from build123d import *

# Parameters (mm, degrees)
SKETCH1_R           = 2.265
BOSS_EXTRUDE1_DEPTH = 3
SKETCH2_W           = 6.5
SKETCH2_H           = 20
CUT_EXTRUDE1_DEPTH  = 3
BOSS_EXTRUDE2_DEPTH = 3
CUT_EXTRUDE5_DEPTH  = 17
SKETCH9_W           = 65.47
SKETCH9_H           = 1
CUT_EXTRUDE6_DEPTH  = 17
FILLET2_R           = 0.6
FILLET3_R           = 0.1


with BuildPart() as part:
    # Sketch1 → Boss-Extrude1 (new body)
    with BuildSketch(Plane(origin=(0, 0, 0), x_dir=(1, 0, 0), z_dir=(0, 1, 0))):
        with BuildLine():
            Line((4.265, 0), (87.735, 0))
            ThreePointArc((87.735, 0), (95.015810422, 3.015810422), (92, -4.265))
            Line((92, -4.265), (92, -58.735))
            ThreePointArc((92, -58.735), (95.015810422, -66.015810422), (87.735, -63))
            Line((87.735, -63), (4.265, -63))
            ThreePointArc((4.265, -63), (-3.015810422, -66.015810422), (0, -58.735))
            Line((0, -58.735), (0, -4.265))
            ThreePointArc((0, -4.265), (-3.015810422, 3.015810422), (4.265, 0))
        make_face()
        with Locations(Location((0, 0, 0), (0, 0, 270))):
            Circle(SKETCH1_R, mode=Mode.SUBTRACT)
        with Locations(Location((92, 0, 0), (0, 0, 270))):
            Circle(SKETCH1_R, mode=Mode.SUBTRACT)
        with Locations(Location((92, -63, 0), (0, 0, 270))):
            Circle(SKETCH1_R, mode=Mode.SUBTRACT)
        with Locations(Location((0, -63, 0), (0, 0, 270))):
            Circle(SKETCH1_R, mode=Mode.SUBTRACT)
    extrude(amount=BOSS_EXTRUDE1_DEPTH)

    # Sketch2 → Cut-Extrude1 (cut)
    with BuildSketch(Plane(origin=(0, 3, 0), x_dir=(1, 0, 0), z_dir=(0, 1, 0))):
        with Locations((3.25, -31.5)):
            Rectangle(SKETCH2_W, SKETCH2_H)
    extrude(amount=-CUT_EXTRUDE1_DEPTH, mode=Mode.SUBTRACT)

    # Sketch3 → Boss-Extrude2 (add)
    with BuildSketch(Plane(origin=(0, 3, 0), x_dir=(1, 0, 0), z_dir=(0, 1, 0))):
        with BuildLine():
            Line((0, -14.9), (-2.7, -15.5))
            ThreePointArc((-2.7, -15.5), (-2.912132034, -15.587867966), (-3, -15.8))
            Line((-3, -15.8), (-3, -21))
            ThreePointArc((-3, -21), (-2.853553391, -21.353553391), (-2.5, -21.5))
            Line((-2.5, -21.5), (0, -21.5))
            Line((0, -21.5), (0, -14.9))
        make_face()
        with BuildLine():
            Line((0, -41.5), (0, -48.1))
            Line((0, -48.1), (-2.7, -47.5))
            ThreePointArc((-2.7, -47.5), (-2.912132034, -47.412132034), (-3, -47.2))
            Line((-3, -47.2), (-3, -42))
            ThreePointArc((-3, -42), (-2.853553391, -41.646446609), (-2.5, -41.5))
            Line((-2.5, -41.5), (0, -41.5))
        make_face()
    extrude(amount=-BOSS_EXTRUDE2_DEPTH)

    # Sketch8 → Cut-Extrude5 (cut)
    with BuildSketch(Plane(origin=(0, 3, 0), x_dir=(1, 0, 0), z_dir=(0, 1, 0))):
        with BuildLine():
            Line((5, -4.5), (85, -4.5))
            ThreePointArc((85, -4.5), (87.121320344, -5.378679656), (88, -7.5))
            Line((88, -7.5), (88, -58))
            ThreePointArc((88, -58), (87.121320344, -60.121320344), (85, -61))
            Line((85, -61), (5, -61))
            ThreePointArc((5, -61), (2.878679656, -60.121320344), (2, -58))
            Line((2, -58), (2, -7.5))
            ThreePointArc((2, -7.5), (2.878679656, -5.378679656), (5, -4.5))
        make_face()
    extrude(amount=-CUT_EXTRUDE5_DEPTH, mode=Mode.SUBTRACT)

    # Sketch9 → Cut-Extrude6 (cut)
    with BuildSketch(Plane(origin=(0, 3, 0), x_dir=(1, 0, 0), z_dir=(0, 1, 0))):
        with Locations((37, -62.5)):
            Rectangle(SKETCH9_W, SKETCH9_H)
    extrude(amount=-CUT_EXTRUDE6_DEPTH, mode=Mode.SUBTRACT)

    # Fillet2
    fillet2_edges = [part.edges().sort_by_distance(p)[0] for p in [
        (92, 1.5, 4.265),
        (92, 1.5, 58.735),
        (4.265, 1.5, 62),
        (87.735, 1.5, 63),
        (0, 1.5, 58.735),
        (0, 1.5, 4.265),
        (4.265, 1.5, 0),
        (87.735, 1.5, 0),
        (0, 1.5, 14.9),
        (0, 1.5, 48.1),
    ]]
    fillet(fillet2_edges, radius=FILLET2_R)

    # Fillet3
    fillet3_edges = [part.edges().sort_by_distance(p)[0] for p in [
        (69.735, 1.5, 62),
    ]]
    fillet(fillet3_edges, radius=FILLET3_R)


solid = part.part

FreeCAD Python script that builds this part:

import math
import FreeCAD as App
import Part
import Sketcher

V = App.Vector
Q = App.Units.Quantity


def edges_at(feature, points):
    """Names of the edges that pass closest to the given points."""
    edges = feature.Shape.Edges
    near = lambda p: min(range(len(edges)), key=lambda i: edges[i].distToShape(Part.Vertex(*p))[0])
    return sorted({f"Edge{near(p) + 1}" for p in points})

doc = App.newDocument("Part")
params = doc.addObject("Spreadsheet::Sheet", "Params")
for row, (alias, value) in enumerate([
    ("sketch1_diameter", "4.53 mm"),
    ("pad1_length", "3 mm"),
    ("sketch2_height", "20 mm"),
    ("sketch2_width", "6.5 mm"),
    ("pocket1_length", "3 mm"),
    ("sketch3_radius", "0.3 mm"),
    ("sketch3_radius2", "0.5 mm"),
    ("sketch3_width", "2.5 mm"),
    ("sketch3_height", "5.2 mm"),
    ("sketch3_height2", "6.6 mm"),
    ("pad2_length", "3 mm"),
    ("sketch4_radius", "3 mm"),
    ("sketch4_width", "80 mm"),
    ("sketch4_height", "50.5 mm"),
    ("pocket2_length", "17 mm"),
    ("sketch5_height", "1 mm"),
    ("sketch5_width", "65.47 mm"),
    ("pocket3_length", "17 mm"),
    ("fillet_radius", "0.6 mm"),
    ("fillet2_radius", "0.1 mm"),
], start=1):
    params.set(f"A{row}", alias)
    params.set(f"B{row}", "=" + value)
    params.setAlias(f"B{row}", alias)

body = doc.addObject("PartDesign::Body", "Body")

# Sketch on XZ plane
sketch1 = doc.addObject("Sketcher::SketchObject", "Sketch")
body.addObject(sketch1)
sketch1.AttachmentSupport = (doc.XZ_Plane, [""])
sketch1.MapMode = "FlatFace"
sketch1.addGeometry([
    Part.LineSegment(V(87.735, 0, 0), V(4.265, 0, 0)),  # 0
    Part.ArcOfCircle(Part.Circle(V(0, 0, 0), V(0, 0, 1), 4.265), math.radians(90), math.radians(360)),  # 1
    Part.LineSegment(V(0, 4.265, 0), V(0, 58.735, 0)),  # 2
    Part.ArcOfCircle(Part.Circle(V(0, 63, 0), V(0, 0, 1), 4.265), math.radians(0), math.radians(270)),  # 3
    Part.LineSegment(V(4.265, 63, 0), V(87.735, 63, 0)),  # 4
    Part.ArcOfCircle(Part.Circle(V(92, 63, 0), V(0, 0, 1), 4.265), math.radians(-90), math.radians(180)),  # 5
    Part.LineSegment(V(92, 58.735, 0), V(92, 4.265, 0)),  # 6
    Part.ArcOfCircle(Part.Circle(V(92, 0, 0), V(0, 0, 1), 4.265), math.radians(180), math.radians(450)),  # 7
    Part.Circle(V(92, 63, 0), V(0, 0, 1), 2.265),  # 8
    Part.Circle(V(0, 63, 0), V(0, 0, 1), 2.265),  # 9
    Part.Circle(V(92, 0, 0), V(0, 0, 1), 2.265),  # 10
    Part.Circle(V(0, 0, 0), V(0, 0, 1), 2.265),  # 11
], False)
sketch1.addConstraint([
    Sketcher.Constraint("Coincident", 0, 2, 1, 2),
    Sketcher.Constraint("Coincident", 1, 1, 2, 1),
    Sketcher.Constraint("Coincident", 2, 2, 3, 2),
    Sketcher.Constraint("Coincident", 3, 1, 4, 1),
    Sketcher.Constraint("Coincident", 4, 2, 5, 2),
    Sketcher.Constraint("Coincident", 5, 1, 6, 1),
    Sketcher.Constraint("Coincident", 6, 2, 7, 2),
    Sketcher.Constraint("Coincident", 7, 1, 0, 1),
    Sketcher.Constraint("Horizontal", 0),
    Sketcher.Constraint("Vertical", 2),
    Sketcher.Constraint("Horizontal", 4),
    Sketcher.Constraint("Vertical", 6),
    Sketcher.Constraint("Coincident", 1, 3, -1, 1),
    Sketcher.Constraint("Coincident", 11, 3, -1, 1),
    Sketcher.Constraint("Coincident", 8, 3, 5, 3),
    Sketcher.Constraint("Coincident", 9, 3, 3, 3),
    Sketcher.Constraint("Coincident", 10, 3, 7, 3),
    Sketcher.Constraint("Equal", 1, 3),
    Sketcher.Constraint("Equal", 3, 5),
    Sketcher.Constraint("Equal", 5, 7),
    Sketcher.Constraint("Equal", 8, 9),
    Sketcher.Constraint("Equal", 9, 10),
    Sketcher.Constraint("Equal", 10, 11),
    Sketcher.Constraint("PointOnObject", 3, 3, -2),
    Sketcher.Constraint("PointOnObject", 7, 3, -1),
    Sketcher.Constraint("PointOnObject", 0, 2, -1),
    Sketcher.Constraint("PointOnObject", 1, 1, -2),
    Sketcher.Constraint("Horizontal", 3, 3, 5, 3),
    Sketcher.Constraint("Horizontal", 9, 3, 3, 1),
    Sketcher.Constraint("Vertical", 5, 3, 7, 3),
    Sketcher.Constraint("Vertical", 10, 3, 5, 1),
    Sketcher.Constraint("Diameter", 8, Q("4.53 mm")),
    Sketcher.Constraint("DistanceY", -1, 1, 3, 3, Q("63 mm")),
    Sketcher.Constraint("DistanceX", -1, 1, 5, 3, Q("92 mm")),
    Sketcher.Constraint("Radius", 1, Q("4.265 mm")),
])
sketch1.setExpression("Constraints[31]", "Params.sketch1_diameter")
pad1 = doc.addObject("PartDesign::Pad", "Pad")
body.addObject(pad1)
pad1.Profile = sketch1
pad1.setExpression("Length", "Params.pad1_length")
pad1.Reversed = True

# Sketch on XZ plane
sketch2 = doc.addObject("Sketcher::SketchObject", "Sketch001")
body.addObject(sketch2)
sketch2.AttachmentSupport = (doc.XZ_Plane, [""])
sketch2.MapMode = "FlatFace"
sketch2.AttachmentOffset = App.Placement(V(0, 0, -3), App.Rotation())
sketch2.addGeometry([
    Part.LineSegment(V(0, 21.5, 0), V(0, 41.5, 0)),
    Part.LineSegment(V(0, 41.5, 0), V(6.5, 41.5, 0)),
    Part.LineSegment(V(6.5, 41.5, 0), V(6.5, 21.5, 0)),
    Part.LineSegment(V(6.5, 21.5, 0), V(0, 21.5, 0)),
], False)
sketch2.addConstraint([
    Sketcher.Constraint("Coincident", 0, 2, 1, 1),
    Sketcher.Constraint("Coincident", 1, 2, 2, 1),
    Sketcher.Constraint("Coincident", 2, 2, 3, 1),
    Sketcher.Constraint("Coincident", 3, 2, 0, 1),
    Sketcher.Constraint("Vertical", 0),
    Sketcher.Constraint("Horizontal", 1),
    Sketcher.Constraint("Vertical", 2),
    Sketcher.Constraint("Horizontal", 3),
    Sketcher.Constraint("PointOnObject", 0, 2, -2),
    Sketcher.Constraint("DistanceY", 0, 1, 0, 2, Q("20 mm")),
    Sketcher.Constraint("DistanceX", 1, 1, 1, 2, Q("6.5 mm")),
    Sketcher.Constraint("DistanceY", -1, 1, 0, 2, Q("41.5 mm")),
])
sketch2.setExpression("Constraints[9]", "Params.sketch2_height")
sketch2.setExpression("Constraints[10]", "Params.sketch2_width")
pocket1 = doc.addObject("PartDesign::Pocket", "Pocket")
body.addObject(pocket1)
pocket1.Profile = sketch2
pocket1.setExpression("Length", "Params.pocket1_length")
pocket1.Reversed = True

# Sketch on XZ plane
sketch3 = doc.addObject("Sketcher::SketchObject", "Sketch002")
body.addObject(sketch3)
sketch3.AttachmentSupport = (doc.XZ_Plane, [""])
sketch3.MapMode = "FlatFace"
sketch3.AttachmentOffset = App.Placement(V(0, 0, -3), App.Rotation())
sketch3.addGeometry([
    Part.LineSegment(V(0, 14.9, 0), V(-2.7, 15.5, 0)),  # 0
    Part.ArcOfCircle(Part.Circle(V(-2.7, 15.8, 0), V(0, 0, 1), 0.3), math.radians(-180), math.radians(-90)),  # 1
    Part.LineSegment(V(-3, 15.8, 0), V(-3, 21, 0)),  # 2
    Part.ArcOfCircle(Part.Circle(V(-2.5, 21, 0), V(0, 0, 1), 0.5), math.radians(90), math.radians(180)),  # 3
    Part.LineSegment(V(-2.5, 21.5, 0), V(0, 21.5, 0)),  # 4
    Part.LineSegment(V(0, 21.5, 0), V(0, 14.9, 0)),  # 5
    Part.LineSegment(V(0, 48.1, 0), V(0, 41.5, 0)),  # 6
    Part.LineSegment(V(0, 41.5, 0), V(-2.5, 41.5, 0)),  # 7
    Part.ArcOfCircle(Part.Circle(V(-2.5, 42, 0), V(0, 0, 1), 0.5), math.radians(180), math.radians(270)),  # 8
    Part.LineSegment(V(-3, 42, 0), V(-3, 47.2, 0)),  # 9
    Part.ArcOfCircle(Part.Circle(V(-2.7, 47.2, 0), V(0, 0, 1), 0.3), math.radians(90), math.radians(180)),  # 10
    Part.LineSegment(V(-2.7, 47.5, 0), V(0, 48.1, 0)),  # 11
], False)
sketch3.addConstraint([
    Sketcher.Constraint("Coincident", 0, 2, 1, 2),
    Sketcher.Constraint("Tangent", 1, 1, 2, 1),
    Sketcher.Constraint("Tangent", 2, 2, 3, 2),
    Sketcher.Constraint("Tangent", 3, 1, 4, 1),
    Sketcher.Constraint("Coincident", 4, 2, 5, 1),
    Sketcher.Constraint("Coincident", 5, 2, 0, 1),
    Sketcher.Constraint("Coincident", 6, 2, 7, 1),
    Sketcher.Constraint("Tangent", 7, 2, 8, 2),
    Sketcher.Constraint("Tangent", 8, 1, 9, 1),
    Sketcher.Constraint("Tangent", 9, 2, 10, 2),
    Sketcher.Constraint("Coincident", 10, 1, 11, 1),
    Sketcher.Constraint("Coincident", 11, 2, 6, 1),
    Sketcher.Constraint("Vertical", 2),
    Sketcher.Constraint("Horizontal", 4),
    Sketcher.Constraint("Vertical", 5),
    Sketcher.Constraint("Vertical", 6),
    Sketcher.Constraint("Horizontal", 7),
    Sketcher.Constraint("Vertical", 9),
    Sketcher.Constraint("Equal", 3, 8),
    Sketcher.Constraint("Equal", 1, 10),
    Sketcher.Constraint("PointOnObject", 4, 2, -2),
    Sketcher.Constraint("PointOnObject", 6, 2, -2),
    Sketcher.Constraint("Vertical", 3, 3, 8, 3),
    Sketcher.Constraint("Vertical", 10, 3, 0, 2),
    Sketcher.Constraint("Vertical", 0, 2, 10, 1),
    Sketcher.Constraint("Equal", 5, 6),
    Sketcher.Constraint("Equal", 2, 9),
    Sketcher.Constraint("Radius", 1, Q("0.3 mm")),
    Sketcher.Constraint("Radius", 3, Q("0.5 mm")),
    Sketcher.Constraint("DistanceX", 4, 1, 4, 2, Q("2.5 mm")),
    Sketcher.Constraint("DistanceY", 2, 1, 2, 2, Q("5.2 mm")),
    Sketcher.Constraint("DistanceY", 5, 2, 5, 1, Q("6.6 mm")),
    Sketcher.Constraint("DistanceY", -1, 1, 3, 3, Q("21 mm")),
    Sketcher.Constraint("DistanceY", -1, 1, 8, 3, Q("42 mm")),
])
sketch3.setExpression("Constraints[27]", "Params.sketch3_radius")
sketch3.setExpression("Constraints[28]", "Params.sketch3_radius2")
sketch3.setExpression("Constraints[29]", "Params.sketch3_width")
sketch3.setExpression("Constraints[30]", "Params.sketch3_height")
sketch3.setExpression("Constraints[31]", "Params.sketch3_height2")
pad2 = doc.addObject("PartDesign::Pad", "Pad001")
body.addObject(pad2)
pad2.Profile = sketch3
pad2.setExpression("Length", "Params.pad2_length")

# Sketch on XZ plane
sketch4 = doc.addObject("Sketcher::SketchObject", "Sketch003")
body.addObject(sketch4)
sketch4.AttachmentSupport = (doc.XZ_Plane, [""])
sketch4.MapMode = "FlatFace"
sketch4.AttachmentOffset = App.Placement(V(0, 0, -3), App.Rotation())
sketch4.addGeometry([
    Part.LineSegment(V(85, 4.5, 0), V(5, 4.5, 0)),  # 0
    Part.ArcOfCircle(Part.Circle(V(5, 7.5, 0), V(0, 0, 1), 3), math.radians(180), math.radians(270)),  # 1
    Part.LineSegment(V(2, 7.5, 0), V(2, 58, 0)),  # 2
    Part.ArcOfCircle(Part.Circle(V(5, 58, 0), V(0, 0, 1), 3), math.radians(90), math.radians(180)),  # 3
    Part.LineSegment(V(5, 61, 0), V(85, 61, 0)),  # 4
    Part.ArcOfCircle(Part.Circle(V(85, 58, 0), V(0, 0, 1), 3), math.radians(0), math.radians(90)),  # 5
    Part.LineSegment(V(88, 58, 0), V(88, 7.5, 0)),  # 6
    Part.ArcOfCircle(Part.Circle(V(85, 7.5, 0), V(0, 0, 1), 3), math.radians(-90), math.radians(0)),  # 7
], False)
sketch4.addConstraint([
    Sketcher.Constraint("Tangent", 0, 2, 1, 2),
    Sketcher.Constraint("Tangent", 1, 1, 2, 1),
    Sketcher.Constraint("Tangent", 2, 2, 3, 2),
    Sketcher.Constraint("Tangent", 3, 1, 4, 1),
    Sketcher.Constraint("Tangent", 4, 2, 5, 2),
    Sketcher.Constraint("Tangent", 5, 1, 6, 1),
    Sketcher.Constraint("Tangent", 6, 2, 7, 2),
    Sketcher.Constraint("Tangent", 7, 1, 0, 1),
    Sketcher.Constraint("Horizontal", 0),
    Sketcher.Constraint("Vertical", 2),
    Sketcher.Constraint("Horizontal", 4),
    Sketcher.Constraint("Vertical", 6),
    Sketcher.Constraint("Equal", 1, 3),
    Sketcher.Constraint("Equal", 3, 5),
    Sketcher.Constraint("Equal", 5, 7),
    Sketcher.Constraint("Radius", 1, Q("3 mm")),
    Sketcher.Constraint("DistanceX", 0, 2, 0, 1, Q("80 mm")),
    Sketcher.Constraint("DistanceY", 2, 1, 2, 2, Q("50.5 mm")),
    Sketcher.Constraint("DistanceX", -1, 1, 1, 3, Q("5 mm")),
    Sketcher.Constraint("DistanceY", -1, 1, 3, 3, Q("58 mm")),
])
sketch4.setExpression("Constraints[15]", "Params.sketch4_radius")
sketch4.setExpression("Constraints[16]", "Params.sketch4_width")
sketch4.setExpression("Constraints[17]", "Params.sketch4_height")
pocket2 = doc.addObject("PartDesign::Pocket", "Pocket001")
body.addObject(pocket2)
pocket2.Profile = sketch4
pocket2.setExpression("Length", "Params.pocket2_length")
pocket2.Reversed = True

# Sketch on XZ plane
sketch5 = doc.addObject("Sketcher::SketchObject", "Sketch004")
body.addObject(sketch5)
sketch5.AttachmentSupport = (doc.XZ_Plane, [""])
sketch5.MapMode = "FlatFace"
sketch5.AttachmentOffset = App.Placement(V(0, 0, -3), App.Rotation())
sketch5.addGeometry([
    Part.LineSegment(V(4.265, 62, 0), V(4.265, 63, 0)),
    Part.LineSegment(V(4.265, 63, 0), V(69.735, 63, 0)),
    Part.LineSegment(V(69.735, 63, 0), V(69.735, 62, 0)),
    Part.LineSegment(V(69.735, 62, 0), V(4.265, 62, 0)),
], False)
sketch5.addConstraint([
    Sketcher.Constraint("Coincident", 0, 2, 1, 1),
    Sketcher.Constraint("Coincident", 1, 2, 2, 1),
    Sketcher.Constraint("Coincident", 2, 2, 3, 1),
    Sketcher.Constraint("Coincident", 3, 2, 0, 1),
    Sketcher.Constraint("Vertical", 0),
    Sketcher.Constraint("Horizontal", 1),
    Sketcher.Constraint("Vertical", 2),
    Sketcher.Constraint("Horizontal", 3),
    Sketcher.Constraint("DistanceY", 0, 1, 0, 2, Q("1 mm")),
    Sketcher.Constraint("DistanceY", -1, 1, 0, 2, Q("63 mm")),
    Sketcher.Constraint("DistanceX", 1, 1, 1, 2, Q("65.47 mm")),
    Sketcher.Constraint("DistanceX", -1, 1, 0, 2, Q("4.265 mm")),
])
sketch5.setExpression("Constraints[8]", "Params.sketch5_height")
sketch5.setExpression("Constraints[10]", "Params.sketch5_width")
pocket3 = doc.addObject("PartDesign::Pocket", "Pocket002")
body.addObject(pocket3)
pocket3.Profile = sketch5
pocket3.setExpression("Length", "Params.pocket3_length")
pocket3.Reversed = True
doc.recompute()

fillet = doc.addObject("PartDesign::Fillet", "Fillet")
body.addObject(fillet)
fillet.Base = (pocket3, edges_at(pocket3, [
    (92, 1.5, 4.265),
    (92, 1.5, 58.735),
    (4.265, 1.5, 62),
    (87.735, 1.5, 63),
    (0, 1.5, 58.735),
    (0, 1.5, 4.265),
    (4.265, 1.5, 0),
    (87.735, 1.5, 0),
    (0, 1.5, 14.9),
    (0, 1.5, 48.1),
]))
fillet.setExpression("Radius", "Params.fillet_radius")
doc.recompute()

fillet2 = doc.addObject("PartDesign::Fillet", "Fillet001")
body.addObject(fillet2)
fillet2.Base = (fillet, edges_at(fillet, [(69.735, 1.5, 62)]))
fillet2.setExpression("Radius", "Params.fillet2_radius")

doc.recompute()
